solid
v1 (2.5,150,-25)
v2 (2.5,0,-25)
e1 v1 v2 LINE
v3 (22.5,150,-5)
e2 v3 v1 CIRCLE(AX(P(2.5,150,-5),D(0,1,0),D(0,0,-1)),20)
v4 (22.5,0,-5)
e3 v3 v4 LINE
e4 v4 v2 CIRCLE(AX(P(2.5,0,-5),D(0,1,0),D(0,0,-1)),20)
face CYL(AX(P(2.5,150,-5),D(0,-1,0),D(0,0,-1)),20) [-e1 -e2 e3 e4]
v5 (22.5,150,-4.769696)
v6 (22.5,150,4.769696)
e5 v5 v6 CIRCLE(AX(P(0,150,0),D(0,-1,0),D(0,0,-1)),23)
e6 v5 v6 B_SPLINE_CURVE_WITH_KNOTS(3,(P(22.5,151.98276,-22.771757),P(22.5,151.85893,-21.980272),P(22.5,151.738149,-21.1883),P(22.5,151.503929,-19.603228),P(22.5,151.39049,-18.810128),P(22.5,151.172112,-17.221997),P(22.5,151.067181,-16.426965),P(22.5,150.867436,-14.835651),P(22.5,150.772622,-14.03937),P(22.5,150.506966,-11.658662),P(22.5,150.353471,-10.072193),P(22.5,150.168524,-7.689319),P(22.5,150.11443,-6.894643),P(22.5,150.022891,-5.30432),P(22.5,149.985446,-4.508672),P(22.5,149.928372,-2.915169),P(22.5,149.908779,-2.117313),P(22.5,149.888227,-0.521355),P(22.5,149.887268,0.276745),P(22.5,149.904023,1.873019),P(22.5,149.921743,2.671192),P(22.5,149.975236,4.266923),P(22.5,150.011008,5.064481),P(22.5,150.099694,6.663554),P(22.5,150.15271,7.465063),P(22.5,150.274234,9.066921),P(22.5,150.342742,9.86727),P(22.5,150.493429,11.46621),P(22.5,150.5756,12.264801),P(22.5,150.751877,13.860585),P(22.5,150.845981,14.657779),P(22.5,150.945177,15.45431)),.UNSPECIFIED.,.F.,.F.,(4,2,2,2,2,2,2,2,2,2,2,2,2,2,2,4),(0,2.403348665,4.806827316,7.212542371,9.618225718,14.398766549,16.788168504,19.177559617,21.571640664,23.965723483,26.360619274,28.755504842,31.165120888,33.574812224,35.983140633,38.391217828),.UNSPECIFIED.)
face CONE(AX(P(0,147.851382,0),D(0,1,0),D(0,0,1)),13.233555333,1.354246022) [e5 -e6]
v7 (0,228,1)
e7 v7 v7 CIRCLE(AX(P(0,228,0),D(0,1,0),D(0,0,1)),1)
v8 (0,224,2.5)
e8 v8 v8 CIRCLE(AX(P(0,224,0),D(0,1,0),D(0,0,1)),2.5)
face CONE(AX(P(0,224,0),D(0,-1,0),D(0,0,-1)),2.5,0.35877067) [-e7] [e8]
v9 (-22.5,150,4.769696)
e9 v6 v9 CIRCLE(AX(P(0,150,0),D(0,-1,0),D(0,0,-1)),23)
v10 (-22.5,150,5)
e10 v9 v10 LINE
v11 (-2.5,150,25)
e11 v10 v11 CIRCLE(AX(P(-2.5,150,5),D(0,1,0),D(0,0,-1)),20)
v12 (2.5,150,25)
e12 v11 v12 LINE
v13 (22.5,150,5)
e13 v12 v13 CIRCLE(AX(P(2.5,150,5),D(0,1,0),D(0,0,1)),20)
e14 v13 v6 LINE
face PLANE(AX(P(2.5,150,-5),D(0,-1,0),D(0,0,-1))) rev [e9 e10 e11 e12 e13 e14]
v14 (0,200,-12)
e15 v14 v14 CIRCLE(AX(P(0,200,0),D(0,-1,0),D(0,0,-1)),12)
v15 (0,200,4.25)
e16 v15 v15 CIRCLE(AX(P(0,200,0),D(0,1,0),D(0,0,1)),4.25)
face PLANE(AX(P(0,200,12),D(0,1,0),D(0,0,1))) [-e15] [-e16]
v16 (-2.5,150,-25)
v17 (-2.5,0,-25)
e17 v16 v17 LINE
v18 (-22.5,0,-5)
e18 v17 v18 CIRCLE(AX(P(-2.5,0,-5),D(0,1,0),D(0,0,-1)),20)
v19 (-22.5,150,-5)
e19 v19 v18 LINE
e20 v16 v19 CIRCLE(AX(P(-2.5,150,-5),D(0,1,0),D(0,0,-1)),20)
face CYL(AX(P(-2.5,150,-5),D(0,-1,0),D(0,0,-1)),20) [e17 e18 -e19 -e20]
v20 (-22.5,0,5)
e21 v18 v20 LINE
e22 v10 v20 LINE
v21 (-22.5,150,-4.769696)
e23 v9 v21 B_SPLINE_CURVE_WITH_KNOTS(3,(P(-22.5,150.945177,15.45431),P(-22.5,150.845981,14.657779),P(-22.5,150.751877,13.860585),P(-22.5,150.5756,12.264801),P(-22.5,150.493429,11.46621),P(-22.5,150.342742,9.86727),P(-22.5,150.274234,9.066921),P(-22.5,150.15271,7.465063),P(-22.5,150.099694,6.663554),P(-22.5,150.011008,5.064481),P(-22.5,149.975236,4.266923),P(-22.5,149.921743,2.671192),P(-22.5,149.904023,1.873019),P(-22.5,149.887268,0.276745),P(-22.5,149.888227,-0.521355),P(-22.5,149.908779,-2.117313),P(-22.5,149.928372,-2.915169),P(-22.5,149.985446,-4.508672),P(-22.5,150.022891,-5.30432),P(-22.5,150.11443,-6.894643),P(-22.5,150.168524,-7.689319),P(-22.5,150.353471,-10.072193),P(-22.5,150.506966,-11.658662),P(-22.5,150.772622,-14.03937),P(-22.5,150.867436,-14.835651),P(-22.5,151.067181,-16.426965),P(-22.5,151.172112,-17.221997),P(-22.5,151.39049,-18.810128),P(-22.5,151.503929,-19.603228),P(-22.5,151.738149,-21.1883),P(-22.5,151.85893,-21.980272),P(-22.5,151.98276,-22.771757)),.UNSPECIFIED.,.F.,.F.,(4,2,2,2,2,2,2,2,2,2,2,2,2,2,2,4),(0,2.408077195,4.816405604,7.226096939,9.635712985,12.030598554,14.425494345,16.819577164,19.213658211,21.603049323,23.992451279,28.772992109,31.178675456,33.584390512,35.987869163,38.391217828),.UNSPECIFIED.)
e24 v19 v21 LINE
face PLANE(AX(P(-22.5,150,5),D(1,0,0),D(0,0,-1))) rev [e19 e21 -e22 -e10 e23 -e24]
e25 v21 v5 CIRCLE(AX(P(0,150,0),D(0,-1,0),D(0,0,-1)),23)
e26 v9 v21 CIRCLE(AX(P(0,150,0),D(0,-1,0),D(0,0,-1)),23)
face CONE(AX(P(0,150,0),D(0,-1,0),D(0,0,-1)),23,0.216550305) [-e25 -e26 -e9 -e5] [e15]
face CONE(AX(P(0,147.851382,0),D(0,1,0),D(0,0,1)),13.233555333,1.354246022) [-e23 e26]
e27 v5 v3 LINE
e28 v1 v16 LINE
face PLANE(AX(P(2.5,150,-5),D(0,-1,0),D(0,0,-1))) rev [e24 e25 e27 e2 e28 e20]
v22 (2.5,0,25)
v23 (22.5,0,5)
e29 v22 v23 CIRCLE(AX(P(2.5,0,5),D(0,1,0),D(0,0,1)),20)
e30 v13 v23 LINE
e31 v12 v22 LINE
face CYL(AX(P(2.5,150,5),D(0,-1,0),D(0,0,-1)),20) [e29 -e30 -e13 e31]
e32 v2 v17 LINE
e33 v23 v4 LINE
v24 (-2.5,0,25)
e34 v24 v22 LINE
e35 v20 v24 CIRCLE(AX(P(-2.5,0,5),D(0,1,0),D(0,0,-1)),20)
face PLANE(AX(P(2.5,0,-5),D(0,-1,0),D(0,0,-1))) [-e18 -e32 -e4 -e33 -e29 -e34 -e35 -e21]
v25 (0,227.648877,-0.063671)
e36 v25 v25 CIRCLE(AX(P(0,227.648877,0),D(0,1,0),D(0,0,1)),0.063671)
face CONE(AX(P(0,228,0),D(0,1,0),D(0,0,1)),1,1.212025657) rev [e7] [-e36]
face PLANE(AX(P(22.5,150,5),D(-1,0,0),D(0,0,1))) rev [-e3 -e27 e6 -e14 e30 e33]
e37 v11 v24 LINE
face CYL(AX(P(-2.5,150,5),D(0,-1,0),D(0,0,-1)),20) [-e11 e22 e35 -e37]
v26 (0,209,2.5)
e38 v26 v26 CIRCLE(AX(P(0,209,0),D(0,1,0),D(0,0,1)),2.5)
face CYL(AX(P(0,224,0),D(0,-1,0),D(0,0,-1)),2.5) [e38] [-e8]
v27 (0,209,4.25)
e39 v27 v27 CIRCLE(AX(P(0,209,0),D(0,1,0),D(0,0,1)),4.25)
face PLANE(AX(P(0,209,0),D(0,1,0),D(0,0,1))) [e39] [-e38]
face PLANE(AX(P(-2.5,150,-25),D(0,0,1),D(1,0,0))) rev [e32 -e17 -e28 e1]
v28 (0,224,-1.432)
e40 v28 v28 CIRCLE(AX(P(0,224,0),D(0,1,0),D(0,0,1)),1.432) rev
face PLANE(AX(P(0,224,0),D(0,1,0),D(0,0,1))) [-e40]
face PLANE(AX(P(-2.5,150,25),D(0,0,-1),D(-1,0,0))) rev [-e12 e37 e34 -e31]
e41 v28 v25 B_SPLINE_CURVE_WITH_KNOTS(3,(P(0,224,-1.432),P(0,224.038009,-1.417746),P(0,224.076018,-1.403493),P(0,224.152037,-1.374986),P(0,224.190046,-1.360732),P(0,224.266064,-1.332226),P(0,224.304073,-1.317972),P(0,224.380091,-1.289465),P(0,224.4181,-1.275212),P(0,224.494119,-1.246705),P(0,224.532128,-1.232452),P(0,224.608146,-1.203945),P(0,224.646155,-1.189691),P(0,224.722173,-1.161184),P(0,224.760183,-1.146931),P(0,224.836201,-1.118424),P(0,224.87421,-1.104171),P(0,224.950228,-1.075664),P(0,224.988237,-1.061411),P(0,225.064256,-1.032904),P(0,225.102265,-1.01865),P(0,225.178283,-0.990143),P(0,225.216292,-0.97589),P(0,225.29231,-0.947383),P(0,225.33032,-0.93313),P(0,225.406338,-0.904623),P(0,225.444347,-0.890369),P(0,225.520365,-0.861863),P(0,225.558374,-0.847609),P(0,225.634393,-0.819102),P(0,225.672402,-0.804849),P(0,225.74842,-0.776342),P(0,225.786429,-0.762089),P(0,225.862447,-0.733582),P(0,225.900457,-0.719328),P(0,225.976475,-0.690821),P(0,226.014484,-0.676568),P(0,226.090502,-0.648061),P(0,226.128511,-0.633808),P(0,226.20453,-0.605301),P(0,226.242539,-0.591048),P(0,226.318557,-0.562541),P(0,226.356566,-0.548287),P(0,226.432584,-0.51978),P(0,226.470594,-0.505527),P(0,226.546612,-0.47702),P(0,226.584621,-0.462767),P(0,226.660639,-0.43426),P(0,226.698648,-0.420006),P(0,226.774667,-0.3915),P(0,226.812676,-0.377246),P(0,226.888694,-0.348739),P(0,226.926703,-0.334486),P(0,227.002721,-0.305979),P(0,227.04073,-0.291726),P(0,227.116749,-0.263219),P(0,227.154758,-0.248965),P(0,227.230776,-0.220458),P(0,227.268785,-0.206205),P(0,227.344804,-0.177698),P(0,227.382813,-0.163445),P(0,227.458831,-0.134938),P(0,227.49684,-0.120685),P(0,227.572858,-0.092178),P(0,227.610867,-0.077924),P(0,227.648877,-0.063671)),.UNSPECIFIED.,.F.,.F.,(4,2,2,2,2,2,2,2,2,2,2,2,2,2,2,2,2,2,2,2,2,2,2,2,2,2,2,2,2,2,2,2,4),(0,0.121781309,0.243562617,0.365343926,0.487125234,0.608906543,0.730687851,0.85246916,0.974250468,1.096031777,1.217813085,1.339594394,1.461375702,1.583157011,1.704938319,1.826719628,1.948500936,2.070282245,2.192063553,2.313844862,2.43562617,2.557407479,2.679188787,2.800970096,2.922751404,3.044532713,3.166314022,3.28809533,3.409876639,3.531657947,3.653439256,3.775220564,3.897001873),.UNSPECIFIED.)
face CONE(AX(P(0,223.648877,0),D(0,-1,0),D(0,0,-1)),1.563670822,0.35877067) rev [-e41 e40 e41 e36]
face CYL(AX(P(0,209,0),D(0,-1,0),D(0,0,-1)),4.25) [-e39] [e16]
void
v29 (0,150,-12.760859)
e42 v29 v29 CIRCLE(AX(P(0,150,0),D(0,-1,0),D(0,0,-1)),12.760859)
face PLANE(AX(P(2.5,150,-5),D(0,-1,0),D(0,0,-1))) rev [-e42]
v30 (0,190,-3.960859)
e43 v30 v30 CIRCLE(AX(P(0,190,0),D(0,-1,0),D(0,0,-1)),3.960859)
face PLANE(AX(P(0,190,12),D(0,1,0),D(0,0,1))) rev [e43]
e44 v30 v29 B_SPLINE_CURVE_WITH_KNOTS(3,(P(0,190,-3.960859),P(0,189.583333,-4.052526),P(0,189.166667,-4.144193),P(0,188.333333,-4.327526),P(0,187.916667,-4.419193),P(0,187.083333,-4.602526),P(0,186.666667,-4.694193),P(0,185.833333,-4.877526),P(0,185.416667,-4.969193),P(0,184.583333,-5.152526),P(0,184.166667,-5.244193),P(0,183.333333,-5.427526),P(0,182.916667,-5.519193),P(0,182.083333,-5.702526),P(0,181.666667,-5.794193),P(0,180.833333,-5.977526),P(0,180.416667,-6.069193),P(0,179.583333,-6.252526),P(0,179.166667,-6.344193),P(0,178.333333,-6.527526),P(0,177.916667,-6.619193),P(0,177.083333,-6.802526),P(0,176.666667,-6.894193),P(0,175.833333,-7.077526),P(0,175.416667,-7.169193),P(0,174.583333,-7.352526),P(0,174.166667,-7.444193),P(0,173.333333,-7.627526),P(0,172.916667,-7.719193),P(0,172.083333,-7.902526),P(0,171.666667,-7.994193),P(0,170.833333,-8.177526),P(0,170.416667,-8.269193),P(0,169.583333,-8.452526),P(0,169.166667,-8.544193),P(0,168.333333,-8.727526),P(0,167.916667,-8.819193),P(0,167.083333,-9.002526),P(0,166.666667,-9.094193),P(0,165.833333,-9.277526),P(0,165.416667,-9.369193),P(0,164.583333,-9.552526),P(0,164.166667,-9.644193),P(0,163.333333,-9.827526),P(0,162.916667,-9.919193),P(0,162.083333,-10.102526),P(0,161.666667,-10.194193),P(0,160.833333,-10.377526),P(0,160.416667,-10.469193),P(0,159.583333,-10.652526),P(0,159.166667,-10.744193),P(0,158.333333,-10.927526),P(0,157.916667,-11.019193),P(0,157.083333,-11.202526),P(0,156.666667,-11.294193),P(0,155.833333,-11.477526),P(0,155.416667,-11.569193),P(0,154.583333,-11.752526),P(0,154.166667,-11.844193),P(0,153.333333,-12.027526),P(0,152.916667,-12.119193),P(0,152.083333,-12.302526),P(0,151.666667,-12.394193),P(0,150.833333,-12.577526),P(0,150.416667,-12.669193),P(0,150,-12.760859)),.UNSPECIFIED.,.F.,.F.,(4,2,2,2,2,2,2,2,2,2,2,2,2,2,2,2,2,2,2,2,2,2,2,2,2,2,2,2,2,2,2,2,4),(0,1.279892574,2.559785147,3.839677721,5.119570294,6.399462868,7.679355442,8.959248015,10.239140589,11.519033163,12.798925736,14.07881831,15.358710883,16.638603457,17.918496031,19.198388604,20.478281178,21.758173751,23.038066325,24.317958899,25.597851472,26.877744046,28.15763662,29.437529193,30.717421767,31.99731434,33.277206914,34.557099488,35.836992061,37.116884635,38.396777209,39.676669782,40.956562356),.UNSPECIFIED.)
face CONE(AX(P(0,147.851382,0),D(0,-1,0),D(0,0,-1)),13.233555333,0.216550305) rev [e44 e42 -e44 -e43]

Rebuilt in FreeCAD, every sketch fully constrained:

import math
import FreeCAD as App
import Part
import Sketcher
from FreeCAD import Vector

doc = App.newDocument("Part")
params = doc.addObject("Spreadsheet::Sheet", "Params")
for row, (alias, value) in enumerate([
    ("sketch1_radius", "20 mm"),
    ("sketch1_width", "5 mm"),
    ("sketch1_height", "10 mm"),
    ("pad1_length", "150 mm"),
    ("sketch2_width", "10 mm"),
    ("sketch2_height", "12 mm"),
    ("sketch2_length", "10 mm"),
    ("revolution_angle", "360 deg"),
    ("sketch3_diameter", "8.5 mm"),
    ("pad2_length", "9 mm"),
    ("sketch4_diameter", "5 mm"),
    ("pad3_length", "15 mm"),
    ("sketch5_length", "1 mm"),
    ("revolution2_angle", "360 deg"),
], start=1):
    params.set(f"A{row}", alias)
    params.set(f"B{row}", "=" + value)
    params.setAlias(f"B{row}", alias)

body = doc.addObject("PartDesign::Body", "Body")

sketch1 = doc.addObject("Sketcher::SketchObject", "Sketch")
body.addObject(sketch1)
sketch1.AttachmentSupport = (doc.XZ_Plane, [""])
sketch1.MapMode = "FlatFace"
sketch1.addGeometry(Part.LineSegment(Vector(-2.5, 25, 0), Vector(2.5, 25, 0)), False)
sketch1.addGeometry(Part.ArcOfCircle(Part.Circle(Vector(2.5, 5, 0), Vector(0, 0, 1), 20), math.radians(0), math.radians(90)), False)
sketch1.addGeometry(Part.LineSegment(Vector(22.5, 5, 0), Vector(22.5, -5, 0)), False)
sketch1.addGeometry(Part.ArcOfCircle(Part.Circle(Vector(2.5, -5, 0), Vector(0, 0, 1), 20), math.radians(-90), math.radians(0)), False)
sketch1.addGeometry(Part.LineSegment(Vector(2.5, -25, 0), Vector(-2.5, -25, 0)), False)
sketch1.addGeometry(Part.ArcOfCircle(Part.Circle(Vector(-2.5, -5, 0), Vector(0, 0, 1), 20), math.radians(180), math.radians(270)), False)
sketch1.addGeometry(Part.LineSegment(Vector(-22.5, -5, 0), Vector(-22.5, 5, 0)), False)
sketch1.addGeometry(Part.ArcOfCircle(Part.Circle(Vector(-2.5, 5, 0), Vector(0, 0, 1), 20), math.radians(90), math.radians(180)), False)
sketch1.addConstraint(Sketcher.Constraint("Tangent", 0, 2, 1, 2))
sketch1.addConstraint(Sketcher.Constraint("Tangent", 1, 1, 2, 1))
sketch1.addConstraint(Sketcher.Constraint("Tangent", 2, 2, 3, 2))
sketch1.addConstraint(Sketcher.Constraint("Tangent", 3, 1, 4, 1))
sketch1.addConstraint(Sketcher.Constraint("Tangent", 4, 2, 5, 2))
sketch1.addConstraint(Sketcher.Constraint("Tangent", 5, 1, 6, 1))
sketch1.addConstraint(Sketcher.Constraint("Tangent", 6, 2, 7, 2))
sketch1.addConstraint(Sketcher.Constraint("Tangent", 7, 1, 0, 1))
sketch1.addConstraint(Sketcher.Constraint("Horizontal", 0))
sketch1.addConstraint(Sketcher.Constraint("Vertical", 2))
sketch1.addConstraint(Sketcher.Constraint("Horizontal", 4))
sketch1.addConstraint(Sketcher.Constraint("Vertical", 6))
sketch1.addConstraint(Sketcher.Constraint("Equal", 1, 3))
sketch1.addConstraint(Sketcher.Constraint("Equal", 3, 5))
sketch1.addConstraint(Sketcher.Constraint("Equal", 5, 7))
sketch1.addConstraint(Sketcher.Constraint("Symmetric", 1, 3, 5, 3, -1, 1))
sketch1.addConstraint(Sketcher.Constraint("Radius", 1, 20.0))
sketch1.addConstraint(Sketcher.Constraint("DistanceX", 0, 1, 0, 2, 5.0))
sketch1.addConstraint(Sketcher.Constraint("DistanceY", 2, 2, 2, 1, 10.0))
sketch1.setExpression("Constraints[16]", "Params.sketch1_radius")
sketch1.setExpression("Constraints[17]", "Params.sketch1_width")
sketch1.setExpression("Constraints[18]", "Params.sketch1_height")
pad1 = doc.addObject("PartDesign::Pad", "Pad")
body.addObject(pad1)
pad1.Profile = sketch1
pad1.setExpression("Length", "Params.pad1_length")
pad1.Reversed = True

sketch2 = doc.addObject("Sketcher::SketchObject", "Sketch001")
body.addObject(sketch2)
sketch2.AttachmentSupport = (doc.YZ_Plane, [""])
sketch2.MapMode = "FlatFace"
sketch2.addGeometry(Part.LineSegment(Vector(200, 12, 0), Vector(150, 23, 0)), False)
sketch2.addGeometry(Part.LineSegment(Vector(150, 23, 0), Vector(147.851382, 13.233555, 0)), False)
sketch2.addGeometry(Part.LineSegment(Vector(147.851382, 13.233555, 0), Vector(190, 3.960859, 0)), False)
sketch2.addGeometry(Part.LineSegment(Vector(190, 3.960859, 0), Vector(190, 0, 0)), False)
sketch2.addGeometry(Part.LineSegment(Vector(190, 0, 0), Vector(200, 0, 0)), False)
sketch2.addGeometry(Part.LineSegment(Vector(200, 0, 0), Vector(200, 12, 0)), False)
sketch2.addConstraint(Sketcher.Constraint("Coincident", 0, 2, 1, 1))
sketch2.addConstraint(Sketcher.Constraint("Coincident", 1, 2, 2, 1))
sketch2.addConstraint(Sketcher.Constraint("Coincident", 2, 2, 3, 1))
sketch2.addConstraint(Sketcher.Constraint("Coincident", 3, 2, 4, 1))
sketch2.addConstraint(Sketcher.Constraint("Coincident", 4, 2, 5, 1))
sketch2.addConstraint(Sketcher.Constraint("Coincident", 5, 2, 0, 1))
sketch2.addConstraint(Sketcher.Constraint("Vertical", 3))
sketch2.addConstraint(Sketcher.Constraint("Horizontal", 4))
sketch2.addConstraint(Sketcher.Constraint("Vertical", 5))
sketch2.addConstraint(Sketcher.Constraint("PointOnObject", 3, 2, -1))
sketch2.addConstraint(Sketcher.Constraint("Perpendicular", 0, 1))
sketch2.addConstraint(Sketcher.Constraint("Perpendicular", 1, 2))
sketch2.addConstraint(Sketcher.Constraint("DistanceX", 4, 1, 4, 2, 10.0))
sketch2.addConstraint(Sketcher.Constraint("DistanceY", 5, 1, 5, 2, 12.0))
sketch2.addConstraint(Sketcher.Constraint("Distance", 1, 10.0))
sketch2.addConstraint(Sketcher.Constraint("DistanceX", -1, 1, 0, 2, 150.0))
sketch2.addConstraint(Sketcher.Constraint("DistanceY", -1, 1, 0, 2, 23.0))
sketch2.addConstraint(Sketcher.Constraint("DistanceX", -1, 1, 2, 2, 190.0))
sketch2.setExpression("Constraints[12]", "Params.sketch2_width")
sketch2.setExpression("Constraints[13]", "Params.sketch2_height")
sketch2.setExpression("Constraints[14]", "Params.sketch2_length")
revolution = doc.addObject("PartDesign::Revolution", "Revolution")
body.addObject(revolution)
revolution.Profile = sketch2
revolution.ReferenceAxis = (sketch2, ["H_Axis"])
revolution.setExpression("Angle", "Params.revolution_angle")

sketch3 = doc.addObject("Sketcher::SketchObject", "Sketch002")
body.addObject(sketch3)
sketch3.AttachmentSupport = (doc.XZ_Plane, [""])
sketch3.MapMode = "FlatFace"
sketch3.AttachmentOffset = App.Placement(Vector(0, 0, -200), App.Rotation())
sketch3.addGeometry(Part.Circle(Vector(0, 0, 0), Vector(0, 0, 1), 4.25), False)
sketch3.addConstraint(Sketcher.Constraint("Coincident", 0, 3, -1, 1))
sketch3.addConstraint(Sketcher.Constraint("Diameter", 0, 8.5))
sketch3.setExpression("Constraints[1]", "Params.sketch3_diameter")
pad2 = doc.addObject("PartDesign::Pad", "Pad001")
body.addObject(pad2)
pad2.Profile = sketch3
pad2.setExpression("Length", "Params.pad2_length")
pad2.Reversed = True

sketch4 = doc.addObject("Sketcher::SketchObject", "Sketch003")
body.addObject(sketch4)
sketch4.AttachmentSupport = (doc.XZ_Plane, [""])
sketch4.MapMode = "FlatFace"
sketch4.AttachmentOffset = App.Placement(Vector(0, 0, -209), App.Rotation())
sketch4.addGeometry(Part.Circle(Vector(0, 0, 0), Vector(0, 0, 1), 2.5), False)
sketch4.addConstraint(Sketcher.Constraint("Coincident", 0, 3, -1, 1))
sketch4.addConstraint(Sketcher.Constraint("Diameter", 0, 5.0))
sketch4.setExpression("Constraints[1]", "Params.sketch4_diameter")
pad3 = doc.addObject("PartDesign::Pad", "Pad002")
body.addObject(pad3)
pad3.Profile = sketch4
pad3.setExpression("Length", "Params.pad3_length")
pad3.Reversed = True

sketch5 = doc.addObject("Sketcher::SketchObject", "Sketch004")
body.addObject(sketch5)
sketch5.AttachmentSupport = (doc.YZ_Plane, [""])
sketch5.MapMode = "FlatFace"
sketch5.addGeometry(Part.LineSegment(Vector(228, 1, 0), Vector(224, 2.5, 0)), False)
sketch5.addGeometry(Part.LineSegment(Vector(224, 2.5, 0), Vector(223.648877, 1.563671, 0)), False)
sketch5.addGeometry(Part.LineSegment(Vector(223.648877, 1.563671, 0), Vector(227.648877, 0.063671, 0)), False)
sketch5.addGeometry(Part.LineSegment(Vector(227.648877, 0.063671, 0), Vector(228, 1, 0)), False)
sketch5.addConstraint(Sketcher.Constraint("Coincident", 0, 2, 1, 1))
sketch5.addConstraint(Sketcher.Constraint("Coincident", 1, 2, 2, 1))
sketch5.addConstraint(Sketcher.Constraint("Coincident", 2, 2, 3, 1))
sketch5.addConstraint(Sketcher.Constraint("Coincident", 3, 2, 0, 1))
sketch5.addConstraint(Sketcher.Constraint("Perpendicular", 0, 1))
sketch5.addConstraint(Sketcher.Constraint("Perpendicular", 1, 2))
sketch5.addConstraint(Sketcher.Constraint("Perpendicular", 2, 3))
sketch5.addConstraint(Sketcher.Constraint("Distance", 1, 1.0))
sketch5.addConstraint(Sketcher.Constraint("DistanceX", -1, 1, 0, 2, 224.0))
sketch5.addConstraint(Sketcher.Constraint("DistanceX", -1, 1, 3, 2, 228.0))
sketch5.addConstraint(Sketcher.Constraint("DistanceY", -1, 1, 3, 2, 1.0))
sketch5.addConstraint(Sketcher.Constraint("DistanceY", -1, 1, 0, 2, 2.5))
sketch5.setExpression("Constraints[7]", "Params.sketch5_length")
revolution2 = doc.addObject("PartDesign::Revolution", "Revolution001")
body.addObject(revolution2)
revolution2.Profile = sketch5
revolution2.ReferenceAxis = (sketch5, ["H_Axis"])
revolution2.setExpression("Angle", "Params.revolution2_angle")

doc.recompute()
